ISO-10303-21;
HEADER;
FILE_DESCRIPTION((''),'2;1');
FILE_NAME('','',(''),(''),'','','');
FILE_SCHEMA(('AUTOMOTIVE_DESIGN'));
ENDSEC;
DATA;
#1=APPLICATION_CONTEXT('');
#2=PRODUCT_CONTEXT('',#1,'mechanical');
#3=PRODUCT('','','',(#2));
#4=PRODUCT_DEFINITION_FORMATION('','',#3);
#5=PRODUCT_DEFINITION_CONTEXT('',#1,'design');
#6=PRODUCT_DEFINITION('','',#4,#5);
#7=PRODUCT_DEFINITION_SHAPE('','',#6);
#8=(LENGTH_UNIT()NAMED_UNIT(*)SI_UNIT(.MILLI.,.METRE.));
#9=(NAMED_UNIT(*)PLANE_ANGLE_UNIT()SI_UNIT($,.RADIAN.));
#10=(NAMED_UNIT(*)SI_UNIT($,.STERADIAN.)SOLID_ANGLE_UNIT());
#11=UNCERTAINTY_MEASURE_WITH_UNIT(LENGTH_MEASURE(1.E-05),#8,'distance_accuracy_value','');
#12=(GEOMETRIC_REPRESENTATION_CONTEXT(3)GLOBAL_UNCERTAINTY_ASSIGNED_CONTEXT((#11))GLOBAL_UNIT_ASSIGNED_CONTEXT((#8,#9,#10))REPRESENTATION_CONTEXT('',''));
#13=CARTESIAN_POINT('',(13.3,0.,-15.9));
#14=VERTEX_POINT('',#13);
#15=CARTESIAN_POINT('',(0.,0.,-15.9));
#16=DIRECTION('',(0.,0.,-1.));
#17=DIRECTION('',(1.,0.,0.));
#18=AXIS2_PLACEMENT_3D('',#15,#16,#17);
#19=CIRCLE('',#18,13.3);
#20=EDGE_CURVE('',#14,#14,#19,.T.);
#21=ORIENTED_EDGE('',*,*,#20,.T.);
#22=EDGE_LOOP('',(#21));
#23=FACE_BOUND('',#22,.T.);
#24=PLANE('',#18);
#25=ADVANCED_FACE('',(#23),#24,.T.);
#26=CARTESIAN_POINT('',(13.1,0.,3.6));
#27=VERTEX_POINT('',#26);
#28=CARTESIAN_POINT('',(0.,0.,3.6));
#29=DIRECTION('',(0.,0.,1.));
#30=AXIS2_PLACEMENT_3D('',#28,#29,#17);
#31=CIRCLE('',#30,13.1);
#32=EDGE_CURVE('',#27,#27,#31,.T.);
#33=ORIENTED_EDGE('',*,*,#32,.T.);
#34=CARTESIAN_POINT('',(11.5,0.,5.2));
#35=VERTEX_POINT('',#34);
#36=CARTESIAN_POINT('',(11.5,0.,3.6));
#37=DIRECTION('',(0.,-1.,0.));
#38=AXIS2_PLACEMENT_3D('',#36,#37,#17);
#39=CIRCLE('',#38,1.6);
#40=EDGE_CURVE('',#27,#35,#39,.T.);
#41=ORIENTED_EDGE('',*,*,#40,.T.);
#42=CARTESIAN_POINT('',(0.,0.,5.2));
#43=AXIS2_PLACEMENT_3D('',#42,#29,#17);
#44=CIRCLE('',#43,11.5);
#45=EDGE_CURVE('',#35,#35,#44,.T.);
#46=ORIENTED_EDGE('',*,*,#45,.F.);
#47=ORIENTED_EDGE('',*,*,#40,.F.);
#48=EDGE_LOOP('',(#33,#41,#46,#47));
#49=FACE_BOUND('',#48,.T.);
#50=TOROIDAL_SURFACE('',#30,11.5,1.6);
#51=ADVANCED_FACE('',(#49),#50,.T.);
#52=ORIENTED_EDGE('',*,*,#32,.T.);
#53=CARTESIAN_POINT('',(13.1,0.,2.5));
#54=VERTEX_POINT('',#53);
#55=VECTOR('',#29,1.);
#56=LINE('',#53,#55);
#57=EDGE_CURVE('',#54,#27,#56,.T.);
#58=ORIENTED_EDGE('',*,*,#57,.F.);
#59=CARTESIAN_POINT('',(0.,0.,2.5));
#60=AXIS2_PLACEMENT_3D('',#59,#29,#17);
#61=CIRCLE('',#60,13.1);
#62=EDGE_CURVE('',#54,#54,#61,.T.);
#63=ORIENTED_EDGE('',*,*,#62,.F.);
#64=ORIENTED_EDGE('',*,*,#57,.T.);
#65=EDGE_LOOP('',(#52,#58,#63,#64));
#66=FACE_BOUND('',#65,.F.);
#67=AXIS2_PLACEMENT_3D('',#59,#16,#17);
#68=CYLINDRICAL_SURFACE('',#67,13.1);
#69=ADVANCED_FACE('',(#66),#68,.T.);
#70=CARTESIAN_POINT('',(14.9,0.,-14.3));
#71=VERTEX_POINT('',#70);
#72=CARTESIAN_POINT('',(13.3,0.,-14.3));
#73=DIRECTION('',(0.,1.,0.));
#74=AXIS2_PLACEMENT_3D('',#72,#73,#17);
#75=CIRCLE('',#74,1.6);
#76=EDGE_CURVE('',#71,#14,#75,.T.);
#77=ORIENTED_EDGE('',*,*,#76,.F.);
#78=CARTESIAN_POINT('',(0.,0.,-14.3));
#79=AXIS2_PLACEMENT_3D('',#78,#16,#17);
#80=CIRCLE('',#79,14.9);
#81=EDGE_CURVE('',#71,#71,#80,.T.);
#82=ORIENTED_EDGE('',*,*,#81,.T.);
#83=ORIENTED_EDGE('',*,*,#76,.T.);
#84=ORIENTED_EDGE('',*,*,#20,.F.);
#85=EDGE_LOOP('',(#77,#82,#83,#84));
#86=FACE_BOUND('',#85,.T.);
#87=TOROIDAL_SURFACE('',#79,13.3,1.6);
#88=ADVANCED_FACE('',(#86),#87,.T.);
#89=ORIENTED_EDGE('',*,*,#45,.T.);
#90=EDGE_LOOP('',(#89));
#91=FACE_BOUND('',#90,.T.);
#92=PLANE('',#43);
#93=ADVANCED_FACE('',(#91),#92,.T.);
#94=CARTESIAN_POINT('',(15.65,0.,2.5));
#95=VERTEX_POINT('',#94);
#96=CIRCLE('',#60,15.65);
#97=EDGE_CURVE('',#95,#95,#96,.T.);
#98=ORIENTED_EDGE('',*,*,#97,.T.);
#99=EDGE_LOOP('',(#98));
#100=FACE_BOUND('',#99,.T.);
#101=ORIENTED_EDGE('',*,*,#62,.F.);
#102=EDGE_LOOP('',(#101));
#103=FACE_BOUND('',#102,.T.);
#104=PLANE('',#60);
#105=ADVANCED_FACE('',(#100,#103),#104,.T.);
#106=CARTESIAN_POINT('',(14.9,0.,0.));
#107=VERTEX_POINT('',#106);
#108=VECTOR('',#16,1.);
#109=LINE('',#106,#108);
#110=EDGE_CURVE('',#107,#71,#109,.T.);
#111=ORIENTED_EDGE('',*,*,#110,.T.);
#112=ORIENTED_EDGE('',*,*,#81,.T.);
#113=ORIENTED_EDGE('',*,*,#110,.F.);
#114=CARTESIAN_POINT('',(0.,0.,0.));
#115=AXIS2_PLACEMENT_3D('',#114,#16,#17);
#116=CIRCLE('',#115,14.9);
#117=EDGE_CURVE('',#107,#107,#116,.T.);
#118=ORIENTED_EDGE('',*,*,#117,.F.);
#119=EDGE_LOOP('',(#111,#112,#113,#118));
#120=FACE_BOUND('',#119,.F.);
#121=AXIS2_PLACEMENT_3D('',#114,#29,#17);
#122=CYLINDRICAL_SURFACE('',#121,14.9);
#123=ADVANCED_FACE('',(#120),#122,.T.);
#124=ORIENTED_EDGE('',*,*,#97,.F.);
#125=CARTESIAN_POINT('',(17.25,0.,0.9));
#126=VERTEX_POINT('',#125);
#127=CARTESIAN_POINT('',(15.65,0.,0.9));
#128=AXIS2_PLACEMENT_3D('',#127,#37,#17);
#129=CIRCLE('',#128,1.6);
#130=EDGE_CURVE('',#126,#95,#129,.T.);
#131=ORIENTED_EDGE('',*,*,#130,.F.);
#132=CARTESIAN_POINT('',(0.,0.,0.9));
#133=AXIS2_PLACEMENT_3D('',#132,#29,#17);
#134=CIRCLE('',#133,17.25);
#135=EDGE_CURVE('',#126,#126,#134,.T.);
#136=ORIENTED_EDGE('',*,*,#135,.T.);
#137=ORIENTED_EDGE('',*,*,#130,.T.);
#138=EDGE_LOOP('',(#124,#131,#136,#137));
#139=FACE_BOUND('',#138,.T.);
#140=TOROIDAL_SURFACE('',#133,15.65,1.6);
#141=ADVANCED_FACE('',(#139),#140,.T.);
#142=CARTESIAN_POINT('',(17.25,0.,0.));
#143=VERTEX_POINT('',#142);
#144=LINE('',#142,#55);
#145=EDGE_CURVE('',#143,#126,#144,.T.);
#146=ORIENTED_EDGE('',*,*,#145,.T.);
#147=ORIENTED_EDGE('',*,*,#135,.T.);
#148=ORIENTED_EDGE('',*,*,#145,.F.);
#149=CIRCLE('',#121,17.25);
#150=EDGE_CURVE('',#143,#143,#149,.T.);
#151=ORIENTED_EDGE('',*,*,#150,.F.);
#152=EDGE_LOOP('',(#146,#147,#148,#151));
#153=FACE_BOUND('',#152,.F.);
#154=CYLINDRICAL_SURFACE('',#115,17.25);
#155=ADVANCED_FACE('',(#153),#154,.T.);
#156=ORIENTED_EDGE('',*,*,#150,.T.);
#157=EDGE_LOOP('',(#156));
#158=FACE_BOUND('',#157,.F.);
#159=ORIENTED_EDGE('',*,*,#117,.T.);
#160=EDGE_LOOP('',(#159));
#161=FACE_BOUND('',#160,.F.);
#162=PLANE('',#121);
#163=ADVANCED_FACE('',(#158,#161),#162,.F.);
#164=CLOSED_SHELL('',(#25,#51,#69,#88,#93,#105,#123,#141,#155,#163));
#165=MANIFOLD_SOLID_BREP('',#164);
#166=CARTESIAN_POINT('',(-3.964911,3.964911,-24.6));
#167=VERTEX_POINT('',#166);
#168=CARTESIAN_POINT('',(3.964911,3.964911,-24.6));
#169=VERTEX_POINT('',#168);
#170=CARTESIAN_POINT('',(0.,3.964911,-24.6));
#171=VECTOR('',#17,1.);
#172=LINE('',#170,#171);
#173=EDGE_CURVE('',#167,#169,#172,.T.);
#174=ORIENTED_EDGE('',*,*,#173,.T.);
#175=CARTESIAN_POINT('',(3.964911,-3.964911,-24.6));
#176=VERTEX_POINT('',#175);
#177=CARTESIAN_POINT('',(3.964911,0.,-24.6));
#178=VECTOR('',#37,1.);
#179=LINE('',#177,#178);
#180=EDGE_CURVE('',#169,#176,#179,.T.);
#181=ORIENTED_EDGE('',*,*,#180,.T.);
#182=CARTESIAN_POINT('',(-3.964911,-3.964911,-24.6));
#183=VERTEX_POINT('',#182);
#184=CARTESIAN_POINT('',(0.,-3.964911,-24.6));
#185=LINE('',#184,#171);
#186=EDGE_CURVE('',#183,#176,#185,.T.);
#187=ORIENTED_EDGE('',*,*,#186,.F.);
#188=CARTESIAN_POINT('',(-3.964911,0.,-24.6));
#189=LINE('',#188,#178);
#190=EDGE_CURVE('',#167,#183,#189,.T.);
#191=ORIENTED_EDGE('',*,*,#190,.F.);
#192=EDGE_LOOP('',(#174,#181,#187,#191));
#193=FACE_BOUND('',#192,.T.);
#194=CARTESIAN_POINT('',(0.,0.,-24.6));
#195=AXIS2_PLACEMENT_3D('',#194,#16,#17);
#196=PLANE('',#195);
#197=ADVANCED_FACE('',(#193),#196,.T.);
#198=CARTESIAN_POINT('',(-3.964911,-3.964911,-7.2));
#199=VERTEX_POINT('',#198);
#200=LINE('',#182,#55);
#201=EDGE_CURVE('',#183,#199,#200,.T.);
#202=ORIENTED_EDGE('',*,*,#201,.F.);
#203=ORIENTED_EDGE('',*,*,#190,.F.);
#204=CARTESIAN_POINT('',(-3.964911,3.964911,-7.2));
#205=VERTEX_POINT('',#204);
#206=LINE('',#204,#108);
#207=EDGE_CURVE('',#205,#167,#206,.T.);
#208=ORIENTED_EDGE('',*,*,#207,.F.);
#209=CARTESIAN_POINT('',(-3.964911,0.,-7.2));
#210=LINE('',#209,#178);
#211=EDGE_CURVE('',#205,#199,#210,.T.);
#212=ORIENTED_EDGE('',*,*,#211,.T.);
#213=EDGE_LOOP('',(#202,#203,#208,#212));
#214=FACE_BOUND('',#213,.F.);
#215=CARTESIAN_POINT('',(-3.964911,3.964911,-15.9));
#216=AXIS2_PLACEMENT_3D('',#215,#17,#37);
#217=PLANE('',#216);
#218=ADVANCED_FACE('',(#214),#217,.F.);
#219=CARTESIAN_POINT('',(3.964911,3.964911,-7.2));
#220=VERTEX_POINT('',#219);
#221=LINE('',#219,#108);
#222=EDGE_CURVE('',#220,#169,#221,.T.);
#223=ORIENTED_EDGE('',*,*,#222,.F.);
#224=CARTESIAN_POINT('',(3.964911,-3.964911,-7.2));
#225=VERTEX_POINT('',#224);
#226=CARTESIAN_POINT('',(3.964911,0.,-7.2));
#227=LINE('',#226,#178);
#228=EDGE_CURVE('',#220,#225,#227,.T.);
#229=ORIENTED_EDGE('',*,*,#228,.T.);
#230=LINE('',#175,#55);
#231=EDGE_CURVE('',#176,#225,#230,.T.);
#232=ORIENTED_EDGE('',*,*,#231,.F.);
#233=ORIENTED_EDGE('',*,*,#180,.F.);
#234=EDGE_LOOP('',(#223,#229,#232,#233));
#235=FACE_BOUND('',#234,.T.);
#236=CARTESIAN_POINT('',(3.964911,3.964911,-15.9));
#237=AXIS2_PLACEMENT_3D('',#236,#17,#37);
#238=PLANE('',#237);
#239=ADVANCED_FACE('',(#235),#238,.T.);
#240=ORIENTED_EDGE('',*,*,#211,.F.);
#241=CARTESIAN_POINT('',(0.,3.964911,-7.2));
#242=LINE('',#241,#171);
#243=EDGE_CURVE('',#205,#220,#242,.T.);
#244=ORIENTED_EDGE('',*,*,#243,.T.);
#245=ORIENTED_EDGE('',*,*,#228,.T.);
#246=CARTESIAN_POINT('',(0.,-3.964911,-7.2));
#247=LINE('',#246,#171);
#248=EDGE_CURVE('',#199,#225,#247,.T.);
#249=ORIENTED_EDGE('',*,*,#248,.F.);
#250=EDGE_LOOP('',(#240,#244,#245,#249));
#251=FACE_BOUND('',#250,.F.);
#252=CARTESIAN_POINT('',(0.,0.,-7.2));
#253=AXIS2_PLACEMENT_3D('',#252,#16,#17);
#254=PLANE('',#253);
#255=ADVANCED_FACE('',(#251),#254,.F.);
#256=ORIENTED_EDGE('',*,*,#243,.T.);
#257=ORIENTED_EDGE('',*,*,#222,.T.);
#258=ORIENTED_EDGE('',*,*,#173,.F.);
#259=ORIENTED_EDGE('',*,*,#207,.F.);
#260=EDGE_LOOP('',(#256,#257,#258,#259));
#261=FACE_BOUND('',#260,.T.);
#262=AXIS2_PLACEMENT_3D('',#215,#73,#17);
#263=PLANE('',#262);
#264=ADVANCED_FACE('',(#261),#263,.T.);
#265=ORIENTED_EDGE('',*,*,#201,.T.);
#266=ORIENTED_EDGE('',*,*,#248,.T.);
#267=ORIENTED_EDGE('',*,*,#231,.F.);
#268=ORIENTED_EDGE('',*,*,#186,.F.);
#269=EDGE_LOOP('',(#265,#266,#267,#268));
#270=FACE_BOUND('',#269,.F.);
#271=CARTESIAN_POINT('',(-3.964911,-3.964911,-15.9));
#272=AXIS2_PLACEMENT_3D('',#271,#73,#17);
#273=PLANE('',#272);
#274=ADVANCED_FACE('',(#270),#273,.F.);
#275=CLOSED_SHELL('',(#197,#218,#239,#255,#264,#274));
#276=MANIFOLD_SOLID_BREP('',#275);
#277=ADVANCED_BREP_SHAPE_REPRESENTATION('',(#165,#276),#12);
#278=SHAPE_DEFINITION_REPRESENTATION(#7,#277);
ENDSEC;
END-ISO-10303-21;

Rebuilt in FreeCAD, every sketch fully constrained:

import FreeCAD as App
import Part
import Sketcher

V = App.Vector
Q = App.Units.Quantity


def edges_at(feature, points):
    """Names of the edges that pass closest to the given points."""
    edges = feature.Shape.Edges
    near = lambda p: min(range(len(edges)), key=lambda i: edges[i].distToShape(Part.Vertex(*p))[0])
    return sorted({f"Edge{near(p) + 1}" for p in points})


def add_polygon(sketch, points):
    """Adds a closed chain of lines whose ends are joined by coincident constraints."""
    first, n = sketch.GeometryCount, len(points)
    for a, b in zip(points, points[1:] + points[:1]):
        sketch.addGeometry(Part.LineSegment(App.Vector(*a, 0), App.Vector(*b, 0)), False)
    for i in range(n):
        sketch.addConstraint(Sketcher.Constraint("Coincident", first + i, 2, first + (i + 1) % n, 1))

doc = App.newDocument("Part")
body = doc.addObject("PartDesign::Body", "Body")

sketch1 = doc.addObject("Sketcher::SketchObject", "Sketch")
body.addObject(sketch1)
sketch1.AttachmentSupport = (doc.XY_Plane, [""])
sketch1.MapMode = "FlatFace"
sketch1.addGeometry(Part.Circle(V(0, 0, 0), V(0, 0, 1), 17), False)
sketch1.addConstraint([
    Sketcher.Constraint("Coincident", 0, 3, -1, 1),
    Sketcher.Constraint("Diameter", 0, Q("34.5 mm")),
])
pad1 = doc.addObject("PartDesign::Pad", "Pad")
body.addObject(pad1)
pad1.Profile = sketch1
pad1.Length = 2.5
doc.recompute()

fillet = doc.addObject("PartDesign::Fillet", "Fillet")
body.addObject(fillet)
fillet.Base = (pad1, edges_at(pad1, [(-17.25, 0, 2.5)]))
fillet.Radius = 1.6

sketch2 = doc.addObject("Sketcher::SketchObject", "Sketch001")
body.addObject(sketch2)
sketch2.AttachmentSupport = (doc.XY_Plane, [""])
sketch2.MapMode = "FlatFace"
sketch2.AttachmentOffset = App.Placement(V(0, 0, 2.5), App.Rotation())
sketch2.addGeometry(Part.Circle(V(0, 0, 0), V(0, 0, 1), 13), False)
sketch2.addConstraint([
    Sketcher.Constraint("Coincident", 0, 3, -1, 1),
    Sketcher.Constraint("Diameter", 0, Q("26.2 mm")),
])
pad2 = doc.addObject("PartDesign::Pad", "Pad001")
body.addObject(pad2)
pad2.Profile = sketch2
pad2.Length = 2.7
doc.recompute()

fillet2 = doc.addObject("PartDesign::Fillet", "Fillet001")
body.addObject(fillet2)
fillet2.Base = (pad2, edges_at(pad2, [(-13.1, 0, 5.2)]))
fillet2.Radius = 1.6

sketch3 = doc.addObject("Sketcher::SketchObject", "Sketch002")
body.addObject(sketch3)
sketch3.AttachmentSupport = (doc.XY_Plane, [""])
sketch3.MapMode = "FlatFace"
sketch3.addGeometry(Part.Circle(V(0, 0, 0), V(0, 0, 1), 15), False)
sketch3.addConstraint([
    Sketcher.Constraint("Coincident", 0, 3, -1, 1),
    Sketcher.Constraint("Diameter", 0, Q("29.8 mm")),
])
pad3 = doc.addObject("PartDesign::Pad", "Pad002")
body.addObject(pad3)
pad3.Profile = sketch3
pad3.Length = 15.9
pad3.Reversed = True
doc.recompute()

fillet3 = doc.addObject("PartDesign::Fillet", "Fillet002")
body.addObject(fillet3)
fillet3.Base = (pad3, edges_at(pad3, [(-14.9, 0, -15.9)]))
fillet3.Radius = 1.6
body2 = doc.addObject("PartDesign::Body", "Body001")

sketch4 = doc.addObject("Sketcher::SketchObject", "Sketch003")
body2.addObject(sketch4)
sketch4.AttachmentSupport = (doc.getObject("XY_Plane001"), [""])
sketch4.MapMode = "FlatFace"
sketch4.AttachmentOffset = App.Placement(V(0, 0, -15.9), App.Rotation())
add_polygon(sketch4, [(-4, -4), (-4, 4), (4, 4), (4, -4)])
sketch4.addConstraint([
    Sketcher.Constraint("Vertical", 0),
    Sketcher.Constraint("Horizontal", 1),
    Sketcher.Constraint("Vertical", 2),
    Sketcher.Constraint("Horizontal", 3),
    Sketcher.Constraint("Symmetric", 0, 2, 2, 2, -1, 1),
    Sketcher.Constraint("Equal", 3, 0),
    Sketcher.Constraint("DistanceX", 1, 1, 1, 2, Q("7.929822 mm")),
])
pad4 = doc.addObject("PartDesign::Pad", "Pad003")
body2.addObject(pad4)
pad4.Profile = sketch4
pad4.Length = 17.4
pad4.Midplane = True

doc.recompute()
